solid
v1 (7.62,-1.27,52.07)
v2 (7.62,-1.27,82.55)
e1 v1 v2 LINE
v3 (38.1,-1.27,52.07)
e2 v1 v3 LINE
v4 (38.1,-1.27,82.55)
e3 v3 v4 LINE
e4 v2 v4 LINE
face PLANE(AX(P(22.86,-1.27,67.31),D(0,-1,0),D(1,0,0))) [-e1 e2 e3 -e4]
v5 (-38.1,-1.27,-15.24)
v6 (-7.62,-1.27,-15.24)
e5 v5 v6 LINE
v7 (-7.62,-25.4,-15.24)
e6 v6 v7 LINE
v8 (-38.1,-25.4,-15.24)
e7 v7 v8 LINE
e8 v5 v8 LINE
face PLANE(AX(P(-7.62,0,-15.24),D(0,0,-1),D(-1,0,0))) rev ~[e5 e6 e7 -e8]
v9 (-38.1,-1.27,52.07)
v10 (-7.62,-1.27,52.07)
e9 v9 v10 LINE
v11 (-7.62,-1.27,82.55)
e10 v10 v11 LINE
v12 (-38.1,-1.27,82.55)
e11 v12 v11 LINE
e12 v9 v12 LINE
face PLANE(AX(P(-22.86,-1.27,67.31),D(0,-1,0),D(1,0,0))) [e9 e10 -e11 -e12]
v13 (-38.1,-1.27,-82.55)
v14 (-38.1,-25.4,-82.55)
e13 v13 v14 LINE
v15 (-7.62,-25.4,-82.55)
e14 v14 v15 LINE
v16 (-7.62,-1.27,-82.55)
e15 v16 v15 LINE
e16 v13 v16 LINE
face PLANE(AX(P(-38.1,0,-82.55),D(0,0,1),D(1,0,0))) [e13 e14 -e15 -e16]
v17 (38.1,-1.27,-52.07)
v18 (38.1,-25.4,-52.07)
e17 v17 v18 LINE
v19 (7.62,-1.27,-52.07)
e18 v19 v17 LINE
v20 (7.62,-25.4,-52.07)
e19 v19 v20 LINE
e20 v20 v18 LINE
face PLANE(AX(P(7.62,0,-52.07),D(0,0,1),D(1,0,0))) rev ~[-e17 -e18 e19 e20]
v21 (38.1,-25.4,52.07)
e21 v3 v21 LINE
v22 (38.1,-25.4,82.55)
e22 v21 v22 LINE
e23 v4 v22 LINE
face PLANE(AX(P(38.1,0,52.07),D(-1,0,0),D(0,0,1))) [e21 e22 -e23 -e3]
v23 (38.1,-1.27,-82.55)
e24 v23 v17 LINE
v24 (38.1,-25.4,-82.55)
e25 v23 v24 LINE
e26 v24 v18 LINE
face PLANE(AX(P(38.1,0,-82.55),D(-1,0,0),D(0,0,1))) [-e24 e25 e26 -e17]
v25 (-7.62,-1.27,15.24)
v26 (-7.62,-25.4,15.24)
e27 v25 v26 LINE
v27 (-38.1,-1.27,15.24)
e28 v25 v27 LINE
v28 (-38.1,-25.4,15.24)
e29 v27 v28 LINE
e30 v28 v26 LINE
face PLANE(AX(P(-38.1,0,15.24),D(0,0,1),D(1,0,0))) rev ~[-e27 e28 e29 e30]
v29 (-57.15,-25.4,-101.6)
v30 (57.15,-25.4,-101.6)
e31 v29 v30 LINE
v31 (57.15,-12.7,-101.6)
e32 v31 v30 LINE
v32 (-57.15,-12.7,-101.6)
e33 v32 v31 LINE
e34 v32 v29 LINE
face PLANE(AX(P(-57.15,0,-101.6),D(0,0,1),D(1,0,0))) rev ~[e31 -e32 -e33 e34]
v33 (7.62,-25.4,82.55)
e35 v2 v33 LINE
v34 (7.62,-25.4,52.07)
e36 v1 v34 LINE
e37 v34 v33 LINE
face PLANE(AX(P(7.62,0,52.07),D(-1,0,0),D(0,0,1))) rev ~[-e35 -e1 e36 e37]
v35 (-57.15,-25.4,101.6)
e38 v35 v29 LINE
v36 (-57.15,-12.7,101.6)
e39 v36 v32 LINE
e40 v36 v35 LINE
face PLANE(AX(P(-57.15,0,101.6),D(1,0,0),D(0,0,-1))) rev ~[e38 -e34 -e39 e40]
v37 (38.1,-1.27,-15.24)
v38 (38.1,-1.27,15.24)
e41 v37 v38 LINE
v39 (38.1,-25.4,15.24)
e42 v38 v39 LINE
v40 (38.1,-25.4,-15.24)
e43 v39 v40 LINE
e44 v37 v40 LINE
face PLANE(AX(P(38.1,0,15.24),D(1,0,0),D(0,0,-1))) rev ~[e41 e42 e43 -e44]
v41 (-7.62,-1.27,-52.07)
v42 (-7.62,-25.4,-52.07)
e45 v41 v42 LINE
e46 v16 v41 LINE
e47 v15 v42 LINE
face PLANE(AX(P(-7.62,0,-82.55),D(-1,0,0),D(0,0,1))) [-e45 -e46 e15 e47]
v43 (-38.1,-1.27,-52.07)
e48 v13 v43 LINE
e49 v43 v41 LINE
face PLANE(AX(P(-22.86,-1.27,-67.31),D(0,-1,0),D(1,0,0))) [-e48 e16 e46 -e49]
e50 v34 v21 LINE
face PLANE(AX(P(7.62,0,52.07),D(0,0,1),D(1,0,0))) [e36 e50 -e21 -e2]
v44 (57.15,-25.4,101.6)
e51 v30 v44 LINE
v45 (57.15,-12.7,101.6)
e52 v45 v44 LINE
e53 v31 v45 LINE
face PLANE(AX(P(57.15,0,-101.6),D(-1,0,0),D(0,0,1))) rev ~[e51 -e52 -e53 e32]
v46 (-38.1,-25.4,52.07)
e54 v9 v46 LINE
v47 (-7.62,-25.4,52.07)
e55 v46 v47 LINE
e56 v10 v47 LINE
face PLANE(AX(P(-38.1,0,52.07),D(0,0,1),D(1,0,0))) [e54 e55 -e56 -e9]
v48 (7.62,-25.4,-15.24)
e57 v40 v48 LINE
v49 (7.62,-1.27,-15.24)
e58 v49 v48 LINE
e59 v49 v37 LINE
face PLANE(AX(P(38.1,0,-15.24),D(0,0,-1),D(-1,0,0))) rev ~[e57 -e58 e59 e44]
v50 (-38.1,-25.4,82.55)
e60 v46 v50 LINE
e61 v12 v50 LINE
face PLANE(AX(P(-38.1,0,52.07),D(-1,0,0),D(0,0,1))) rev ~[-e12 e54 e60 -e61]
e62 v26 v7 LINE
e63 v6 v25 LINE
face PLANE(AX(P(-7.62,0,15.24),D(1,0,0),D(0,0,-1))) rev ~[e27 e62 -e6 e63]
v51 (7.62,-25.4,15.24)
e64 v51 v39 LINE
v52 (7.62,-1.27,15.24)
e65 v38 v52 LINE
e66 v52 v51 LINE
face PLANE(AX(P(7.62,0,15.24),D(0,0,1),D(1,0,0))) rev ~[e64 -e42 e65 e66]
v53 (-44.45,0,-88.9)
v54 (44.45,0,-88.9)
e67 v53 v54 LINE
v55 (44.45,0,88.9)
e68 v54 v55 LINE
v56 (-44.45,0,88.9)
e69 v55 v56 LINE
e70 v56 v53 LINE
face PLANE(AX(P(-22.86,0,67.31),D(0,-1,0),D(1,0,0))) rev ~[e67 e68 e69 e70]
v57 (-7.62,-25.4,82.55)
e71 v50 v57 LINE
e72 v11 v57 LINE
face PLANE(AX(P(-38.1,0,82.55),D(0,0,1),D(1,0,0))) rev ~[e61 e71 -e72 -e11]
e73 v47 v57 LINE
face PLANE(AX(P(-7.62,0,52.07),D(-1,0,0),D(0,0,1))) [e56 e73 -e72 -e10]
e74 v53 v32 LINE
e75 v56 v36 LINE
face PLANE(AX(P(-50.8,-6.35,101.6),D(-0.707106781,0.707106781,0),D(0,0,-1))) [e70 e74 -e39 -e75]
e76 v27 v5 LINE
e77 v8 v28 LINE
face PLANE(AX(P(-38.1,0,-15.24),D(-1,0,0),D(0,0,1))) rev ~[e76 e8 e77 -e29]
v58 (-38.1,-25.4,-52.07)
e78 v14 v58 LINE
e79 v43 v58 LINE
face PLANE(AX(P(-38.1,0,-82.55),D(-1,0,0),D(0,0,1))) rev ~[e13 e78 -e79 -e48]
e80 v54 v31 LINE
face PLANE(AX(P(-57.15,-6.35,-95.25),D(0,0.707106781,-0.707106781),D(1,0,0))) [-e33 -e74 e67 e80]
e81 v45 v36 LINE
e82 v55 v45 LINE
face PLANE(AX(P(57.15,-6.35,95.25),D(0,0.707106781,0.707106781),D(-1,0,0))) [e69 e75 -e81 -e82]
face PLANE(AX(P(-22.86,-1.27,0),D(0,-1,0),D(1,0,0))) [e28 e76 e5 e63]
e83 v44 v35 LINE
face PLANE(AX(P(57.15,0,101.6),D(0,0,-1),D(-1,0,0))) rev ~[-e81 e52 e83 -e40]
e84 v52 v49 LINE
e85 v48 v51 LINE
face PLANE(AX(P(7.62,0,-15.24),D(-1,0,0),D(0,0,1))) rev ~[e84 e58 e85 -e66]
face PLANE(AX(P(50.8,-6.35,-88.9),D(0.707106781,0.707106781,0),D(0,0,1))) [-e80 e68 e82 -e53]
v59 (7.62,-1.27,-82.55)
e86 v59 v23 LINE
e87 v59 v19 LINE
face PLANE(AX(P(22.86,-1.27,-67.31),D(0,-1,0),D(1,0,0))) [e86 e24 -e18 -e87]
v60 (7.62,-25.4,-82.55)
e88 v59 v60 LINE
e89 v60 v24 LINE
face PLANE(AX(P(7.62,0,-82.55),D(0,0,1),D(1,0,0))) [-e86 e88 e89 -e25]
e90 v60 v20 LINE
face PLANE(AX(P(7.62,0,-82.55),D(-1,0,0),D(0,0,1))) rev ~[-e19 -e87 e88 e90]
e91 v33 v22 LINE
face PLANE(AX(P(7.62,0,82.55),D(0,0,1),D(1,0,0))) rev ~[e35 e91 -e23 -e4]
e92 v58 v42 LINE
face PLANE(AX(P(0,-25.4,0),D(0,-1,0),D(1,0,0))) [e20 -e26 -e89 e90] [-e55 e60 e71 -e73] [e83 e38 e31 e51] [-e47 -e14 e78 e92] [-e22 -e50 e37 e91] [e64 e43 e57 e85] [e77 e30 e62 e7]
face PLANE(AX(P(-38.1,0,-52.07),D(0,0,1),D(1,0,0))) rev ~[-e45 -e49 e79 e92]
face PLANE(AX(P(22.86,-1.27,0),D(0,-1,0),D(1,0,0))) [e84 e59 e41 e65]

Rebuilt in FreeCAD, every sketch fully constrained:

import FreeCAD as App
import Part
import Sketcher

V = App.Vector
Q = App.Units.Quantity


def edges_at(feature, points):
    """Names of the edges that pass closest to the given points."""
    edges = feature.Shape.Edges
    near = lambda p: min(range(len(edges)), key=lambda i: edges[i].distToShape(Part.Vertex(*p))[0])
    return sorted({f"Edge{near(p) + 1}" for p in points})


def add_polygon(sketch, points):
    """Adds a closed chain of lines whose ends are joined by coincident constraints."""
    first, n = sketch.GeometryCount, len(points)
    for a, b in zip(points, points[1:] + points[:1]):
        sketch.addGeometry(Part.LineSegment(App.Vector(*a, 0), App.Vector(*b, 0)), False)
    for i in range(n):
        sketch.addConstraint(Sketcher.Constraint("Coincident", first + i, 2, first + (i + 1) % n, 1))

doc = App.newDocument("Part")
body = doc.addObject("PartDesign::Body", "Body")

sketch1 = doc.addObject("Sketcher::SketchObject", "Sketch")
body.addObject(sketch1)
sketch1.AttachmentSupport = (doc.XZ_Plane, [""])
sketch1.MapMode = "FlatFace"
add_polygon(sketch1, [(57.15, 101.6), (-57.15, 101.6), (-57.15, -101.6), (57.15, -101.6)])
add_polygon(sketch1, [(-7.62, -82.55), (-38.1, -82.55), (-38.1, -52.07), (-7.62, -52.07)])
add_polygon(sketch1, [(38.1, -82.55), (7.62, -82.55), (7.62, -52.07), (38.1, -52.07)])
add_polygon(sketch1, [(-7.62, -15.24), (-38.1, -15.24), (-38.1, 15.24), (-7.62, 15.24)])
add_polygon(sketch1, [(-7.62, 52.07), (-38.1, 52.07), (-38.1, 82.55), (-7.62, 82.55)])
add_polygon(sketch1, [(7.62, 15.24), (38.1, 15.24), (38.1, -15.24), (7.62, -15.24)])
add_polygon(sketch1, [(38.1, 52.07), (7.62, 52.07), (7.62, 82.55), (38.1, 82.55)])
sketch1.addConstraint(Sketcher.Constraint("Horizontal", 0))
sketch1.addConstraint(Sketcher.Constraint("Vertical", 1))
sketch1.addConstraint(Sketcher.Constraint("Horizontal", 2))
sketch1.addConstraint(Sketcher.Constraint("Vertical", 3))
sketch1.addConstraint(Sketcher.Constraint("Horizontal", 4))
sketch1.addConstraint(Sketcher.Constraint("Vertical", 5))
sketch1.addConstraint(Sketcher.Constraint("Horizontal", 6))
sketch1.addConstraint(Sketcher.Constraint("Vertical", 7))
sketch1.addConstraint(Sketcher.Constraint("Horizontal", 8))
sketch1.addConstraint(Sketcher.Constraint("Vertical", 9))
sketch1.addConstraint(Sketcher.Constraint("Horizontal", 10))
sketch1.addConstraint(Sketcher.Constraint("Vertical", 11))
sketch1.addConstraint(Sketcher.Constraint("Horizontal", 12))
sketch1.addConstraint(Sketcher.Constraint("Vertical", 13))
sketch1.addConstraint(Sketcher.Constraint("Horizontal", 14))
sketch1.addConstraint(Sketcher.Constraint("Vertical", 15))
sketch1.addConstraint(Sketcher.Constraint("Horizontal", 16))
sketch1.addConstraint(Sketcher.Constraint("Vertical", 17))
sketch1.addConstraint(Sketcher.Constraint("Horizontal", 18))
sketch1.addConstraint(Sketcher.Constraint("Vertical", 19))
sketch1.addConstraint(Sketcher.Constraint("Horizontal", 20))
sketch1.addConstraint(Sketcher.Constraint("Vertical", 21))
sketch1.addConstraint(Sketcher.Constraint("Horizontal", 22))
sketch1.addConstraint(Sketcher.Constraint("Vertical", 23))
sketch1.addConstraint(Sketcher.Constraint("Horizontal", 24))
sketch1.addConstraint(Sketcher.Constraint("Vertical", 25))
sketch1.addConstraint(Sketcher.Constraint("Horizontal", 26))
sketch1.addConstraint(Sketcher.Constraint("Vertical", 27))
sketch1.addConstraint(Sketcher.Constraint("Symmetric", 0, 2, 2, 2, -1, 1))
sketch1.addConstraint(Sketcher.Constraint("Symmetric", 10, 2, 16, 2, -1, 1))
sketch1.addConstraint(Sketcher.Constraint("Symmetric", 8, 2, 18, 2, -1, 1))
sketch1.addConstraint(Sketcher.Constraint("Symmetric", 12, 2, 20, 2, -1, 1))
sketch1.addConstraint(Sketcher.Constraint("Symmetric", 14, 2, 22, 2, -1, 1))
sketch1.addConstraint(Sketcher.Constraint("Symmetric", 6, 2, 24, 2, -1, 1))
sketch1.addConstraint(Sketcher.Constraint("Symmetric", 4, 2, 26, 2, -1, 1))
sketch1.addConstraint(Sketcher.Constraint("Symmetric", 7, 2, 8, 2, -2))
sketch1.addConstraint(Sketcher.Constraint("Symmetric", 5, 2, 10, 2, -2))
sketch1.addConstraint(Sketcher.Constraint("Horizontal", 14, 2, 20, 2))
sketch1.addConstraint(Sketcher.Constraint("Vertical", 5, 2, 12, 2))
sketch1.addConstraint(Sketcher.Constraint("Vertical", 7, 2, 14, 2))
sketch1.addConstraint(Sketcher.Constraint("Equal", 26, 5))
sketch1.addConstraint(Sketcher.Constraint("Equal", 11, 13))
sketch1.addConstraint(Sketcher.Constraint("DistanceY", 1, 2, 1, 1, Q("8 in")))
sketch1.addConstraint(Sketcher.Constraint("DistanceX", 0, 2, 0, 1, Q("4.5 in")))
sketch1.addConstraint(Sketcher.Constraint("DistanceX", 4, 2, 4, 1, Q("1.2 in")))
sketch1.addConstraint(Sketcher.Constraint("DistanceX", 4, 2, -1, 1, Q("1.5 in")))
sketch1.addConstraint(Sketcher.Constraint("DistanceY", 4, 2, -1, 1, Q("3.25 in")))
pad1 = doc.addObject("PartDesign::Pad", "Pad")
body.addObject(pad1)
pad1.Profile = sketch1
pad1.Length = Q("1 in")

sketch2 = doc.addObject("Sketcher::SketchObject", "Sketch001")
body.addObject(sketch2)
sketch2.AttachmentSupport = (doc.XZ_Plane, [""])
sketch2.MapMode = "FlatFace"
add_polygon(sketch2, [(-38.1, 82.55), (-38.1, 52.07), (-7.62, 52.07), (-7.62, 82.55)])
add_polygon(sketch2, [(7.62, 82.55), (7.62, 52.07), (38.1, 52.07), (38.1, 82.55)])
add_polygon(sketch2, [(-38.1, 15.24), (-38.1, -15.24), (-7.62, -15.24), (-7.62, 15.24)])
add_polygon(sketch2, [(38.1, -15.24), (38.1, 15.24), (7.62, 15.24), (7.62, -15.24)])
add_polygon(sketch2, [(-38.1, -52.07), (-38.1, -82.55), (-7.62, -82.55), (-7.62, -52.07)])
add_polygon(sketch2, [(7.62, -52.07), (7.62, -82.55), (38.1, -82.55), (38.1, -52.07)])
sketch2.addConstraint(Sketcher.Constraint("Vertical", 0))
sketch2.addConstraint(Sketcher.Constraint("Horizontal", 1))
sketch2.addConstraint(Sketcher.Constraint("Vertical", 2))
sketch2.addConstraint(Sketcher.Constraint("Horizontal", 3))
sketch2.addConstraint(Sketcher.Constraint("Vertical", 4))
sketch2.addConstraint(Sketcher.Constraint("Horizontal", 5))
sketch2.addConstraint(Sketcher.Constraint("Vertical", 6))
sketch2.addConstraint(Sketcher.Constraint("Horizontal", 7))
sketch2.addConstraint(Sketcher.Constraint("Vertical", 8))
sketch2.addConstraint(Sketcher.Constraint("Horizontal", 9))
sketch2.addConstraint(Sketcher.Constraint("Vertical", 10))
sketch2.addConstraint(Sketcher.Constraint("Horizontal", 11))
sketch2.addConstraint(Sketcher.Constraint("Vertical", 12))
sketch2.addConstraint(Sketcher.Constraint("Horizontal", 13))
sketch2.addConstraint(Sketcher.Constraint("Vertical", 14))
sketch2.addConstraint(Sketcher.Constraint("Horizontal", 15))
sketch2.addConstraint(Sketcher.Constraint("Vertical", 16))
sketch2.addConstraint(Sketcher.Constraint("Horizontal", 17))
sketch2.addConstraint(Sketcher.Constraint("Vertical", 18))
sketch2.addConstraint(Sketcher.Constraint("Horizontal", 19))
sketch2.addConstraint(Sketcher.Constraint("Vertical", 20))
sketch2.addConstraint(Sketcher.Constraint("Horizontal", 21))
sketch2.addConstraint(Sketcher.Constraint("Vertical", 22))
sketch2.addConstraint(Sketcher.Constraint("Horizontal", 23))
sketch2.addConstraint(Sketcher.Constraint("Symmetric", 8, 2, 12, 2, -1, 1))
sketch2.addConstraint(Sketcher.Constraint("Symmetric", 10, 2, 14, 2, -1, 1))
sketch2.addConstraint(Sketcher.Constraint("Symmetric", 6, 2, 16, 2, -1, 1))
sketch2.addConstraint(Sketcher.Constraint("Symmetric", 4, 2, 18, 2, -1, 1))
sketch2.addConstraint(Sketcher.Constraint("Symmetric", 2, 2, 20, 2, -1, 1))
sketch2.addConstraint(Sketcher.Constraint("Symmetric", 0, 2, 22, 2, -1, 1))
sketch2.addConstraint(Sketcher.Constraint("Symmetric", 1, 2, 4, 2, -2))
sketch2.addConstraint(Sketcher.Constraint("Symmetric", 3, 2, 6, 2, -2))
sketch2.addConstraint(Sketcher.Constraint("Horizontal", 11, 2, 12, 2))
sketch2.addConstraint(Sketcher.Constraint("Vertical", 3, 2, 8, 2))
sketch2.addConstraint(Sketcher.Constraint("Vertical", 2, 2, 9, 2))
sketch2.addConstraint(Sketcher.Constraint("Equal", 23, 0))
sketch2.addConstraint(Sketcher.Constraint("Equal", 6, 8))
sketch2.addConstraint(Sketcher.Constraint("DistanceX", 1, 1, 1, 2, Q("1.2 in")))
sketch2.addConstraint(Sketcher.Constraint("DistanceX", 0, 2, 5, 2, Q("3 in")))
sketch2.addConstraint(Sketcher.Constraint("DistanceY", -1, 1, 0, 2, Q("2.05 in")))
pad2 = doc.addObject("PartDesign::Pad", "Pad001")
body.addObject(pad2)
pad2.Profile = sketch2
pad2.Length = Q("0.05 in")
doc.recompute()

chamfer = doc.addObject("PartDesign::Chamfer", "Chamfer")
body.addObject(chamfer)
chamfer.Base = (pad2, edges_at(pad2, [(0, 0, -101.6)]))
chamfer.Size = Q("0.5 in")
doc.recompute()

chamfer2 = doc.addObject("PartDesign::Chamfer", "Chamfer001")
body.addObject(chamfer2)
chamfer2.Base = (chamfer, edges_at(chamfer, [(-57.15, 0, 6.35), (0, 0, 101.6), (57.15, 0, 6.35)]))
chamfer2.Size = Q("0.5 in")

doc.recompute()
